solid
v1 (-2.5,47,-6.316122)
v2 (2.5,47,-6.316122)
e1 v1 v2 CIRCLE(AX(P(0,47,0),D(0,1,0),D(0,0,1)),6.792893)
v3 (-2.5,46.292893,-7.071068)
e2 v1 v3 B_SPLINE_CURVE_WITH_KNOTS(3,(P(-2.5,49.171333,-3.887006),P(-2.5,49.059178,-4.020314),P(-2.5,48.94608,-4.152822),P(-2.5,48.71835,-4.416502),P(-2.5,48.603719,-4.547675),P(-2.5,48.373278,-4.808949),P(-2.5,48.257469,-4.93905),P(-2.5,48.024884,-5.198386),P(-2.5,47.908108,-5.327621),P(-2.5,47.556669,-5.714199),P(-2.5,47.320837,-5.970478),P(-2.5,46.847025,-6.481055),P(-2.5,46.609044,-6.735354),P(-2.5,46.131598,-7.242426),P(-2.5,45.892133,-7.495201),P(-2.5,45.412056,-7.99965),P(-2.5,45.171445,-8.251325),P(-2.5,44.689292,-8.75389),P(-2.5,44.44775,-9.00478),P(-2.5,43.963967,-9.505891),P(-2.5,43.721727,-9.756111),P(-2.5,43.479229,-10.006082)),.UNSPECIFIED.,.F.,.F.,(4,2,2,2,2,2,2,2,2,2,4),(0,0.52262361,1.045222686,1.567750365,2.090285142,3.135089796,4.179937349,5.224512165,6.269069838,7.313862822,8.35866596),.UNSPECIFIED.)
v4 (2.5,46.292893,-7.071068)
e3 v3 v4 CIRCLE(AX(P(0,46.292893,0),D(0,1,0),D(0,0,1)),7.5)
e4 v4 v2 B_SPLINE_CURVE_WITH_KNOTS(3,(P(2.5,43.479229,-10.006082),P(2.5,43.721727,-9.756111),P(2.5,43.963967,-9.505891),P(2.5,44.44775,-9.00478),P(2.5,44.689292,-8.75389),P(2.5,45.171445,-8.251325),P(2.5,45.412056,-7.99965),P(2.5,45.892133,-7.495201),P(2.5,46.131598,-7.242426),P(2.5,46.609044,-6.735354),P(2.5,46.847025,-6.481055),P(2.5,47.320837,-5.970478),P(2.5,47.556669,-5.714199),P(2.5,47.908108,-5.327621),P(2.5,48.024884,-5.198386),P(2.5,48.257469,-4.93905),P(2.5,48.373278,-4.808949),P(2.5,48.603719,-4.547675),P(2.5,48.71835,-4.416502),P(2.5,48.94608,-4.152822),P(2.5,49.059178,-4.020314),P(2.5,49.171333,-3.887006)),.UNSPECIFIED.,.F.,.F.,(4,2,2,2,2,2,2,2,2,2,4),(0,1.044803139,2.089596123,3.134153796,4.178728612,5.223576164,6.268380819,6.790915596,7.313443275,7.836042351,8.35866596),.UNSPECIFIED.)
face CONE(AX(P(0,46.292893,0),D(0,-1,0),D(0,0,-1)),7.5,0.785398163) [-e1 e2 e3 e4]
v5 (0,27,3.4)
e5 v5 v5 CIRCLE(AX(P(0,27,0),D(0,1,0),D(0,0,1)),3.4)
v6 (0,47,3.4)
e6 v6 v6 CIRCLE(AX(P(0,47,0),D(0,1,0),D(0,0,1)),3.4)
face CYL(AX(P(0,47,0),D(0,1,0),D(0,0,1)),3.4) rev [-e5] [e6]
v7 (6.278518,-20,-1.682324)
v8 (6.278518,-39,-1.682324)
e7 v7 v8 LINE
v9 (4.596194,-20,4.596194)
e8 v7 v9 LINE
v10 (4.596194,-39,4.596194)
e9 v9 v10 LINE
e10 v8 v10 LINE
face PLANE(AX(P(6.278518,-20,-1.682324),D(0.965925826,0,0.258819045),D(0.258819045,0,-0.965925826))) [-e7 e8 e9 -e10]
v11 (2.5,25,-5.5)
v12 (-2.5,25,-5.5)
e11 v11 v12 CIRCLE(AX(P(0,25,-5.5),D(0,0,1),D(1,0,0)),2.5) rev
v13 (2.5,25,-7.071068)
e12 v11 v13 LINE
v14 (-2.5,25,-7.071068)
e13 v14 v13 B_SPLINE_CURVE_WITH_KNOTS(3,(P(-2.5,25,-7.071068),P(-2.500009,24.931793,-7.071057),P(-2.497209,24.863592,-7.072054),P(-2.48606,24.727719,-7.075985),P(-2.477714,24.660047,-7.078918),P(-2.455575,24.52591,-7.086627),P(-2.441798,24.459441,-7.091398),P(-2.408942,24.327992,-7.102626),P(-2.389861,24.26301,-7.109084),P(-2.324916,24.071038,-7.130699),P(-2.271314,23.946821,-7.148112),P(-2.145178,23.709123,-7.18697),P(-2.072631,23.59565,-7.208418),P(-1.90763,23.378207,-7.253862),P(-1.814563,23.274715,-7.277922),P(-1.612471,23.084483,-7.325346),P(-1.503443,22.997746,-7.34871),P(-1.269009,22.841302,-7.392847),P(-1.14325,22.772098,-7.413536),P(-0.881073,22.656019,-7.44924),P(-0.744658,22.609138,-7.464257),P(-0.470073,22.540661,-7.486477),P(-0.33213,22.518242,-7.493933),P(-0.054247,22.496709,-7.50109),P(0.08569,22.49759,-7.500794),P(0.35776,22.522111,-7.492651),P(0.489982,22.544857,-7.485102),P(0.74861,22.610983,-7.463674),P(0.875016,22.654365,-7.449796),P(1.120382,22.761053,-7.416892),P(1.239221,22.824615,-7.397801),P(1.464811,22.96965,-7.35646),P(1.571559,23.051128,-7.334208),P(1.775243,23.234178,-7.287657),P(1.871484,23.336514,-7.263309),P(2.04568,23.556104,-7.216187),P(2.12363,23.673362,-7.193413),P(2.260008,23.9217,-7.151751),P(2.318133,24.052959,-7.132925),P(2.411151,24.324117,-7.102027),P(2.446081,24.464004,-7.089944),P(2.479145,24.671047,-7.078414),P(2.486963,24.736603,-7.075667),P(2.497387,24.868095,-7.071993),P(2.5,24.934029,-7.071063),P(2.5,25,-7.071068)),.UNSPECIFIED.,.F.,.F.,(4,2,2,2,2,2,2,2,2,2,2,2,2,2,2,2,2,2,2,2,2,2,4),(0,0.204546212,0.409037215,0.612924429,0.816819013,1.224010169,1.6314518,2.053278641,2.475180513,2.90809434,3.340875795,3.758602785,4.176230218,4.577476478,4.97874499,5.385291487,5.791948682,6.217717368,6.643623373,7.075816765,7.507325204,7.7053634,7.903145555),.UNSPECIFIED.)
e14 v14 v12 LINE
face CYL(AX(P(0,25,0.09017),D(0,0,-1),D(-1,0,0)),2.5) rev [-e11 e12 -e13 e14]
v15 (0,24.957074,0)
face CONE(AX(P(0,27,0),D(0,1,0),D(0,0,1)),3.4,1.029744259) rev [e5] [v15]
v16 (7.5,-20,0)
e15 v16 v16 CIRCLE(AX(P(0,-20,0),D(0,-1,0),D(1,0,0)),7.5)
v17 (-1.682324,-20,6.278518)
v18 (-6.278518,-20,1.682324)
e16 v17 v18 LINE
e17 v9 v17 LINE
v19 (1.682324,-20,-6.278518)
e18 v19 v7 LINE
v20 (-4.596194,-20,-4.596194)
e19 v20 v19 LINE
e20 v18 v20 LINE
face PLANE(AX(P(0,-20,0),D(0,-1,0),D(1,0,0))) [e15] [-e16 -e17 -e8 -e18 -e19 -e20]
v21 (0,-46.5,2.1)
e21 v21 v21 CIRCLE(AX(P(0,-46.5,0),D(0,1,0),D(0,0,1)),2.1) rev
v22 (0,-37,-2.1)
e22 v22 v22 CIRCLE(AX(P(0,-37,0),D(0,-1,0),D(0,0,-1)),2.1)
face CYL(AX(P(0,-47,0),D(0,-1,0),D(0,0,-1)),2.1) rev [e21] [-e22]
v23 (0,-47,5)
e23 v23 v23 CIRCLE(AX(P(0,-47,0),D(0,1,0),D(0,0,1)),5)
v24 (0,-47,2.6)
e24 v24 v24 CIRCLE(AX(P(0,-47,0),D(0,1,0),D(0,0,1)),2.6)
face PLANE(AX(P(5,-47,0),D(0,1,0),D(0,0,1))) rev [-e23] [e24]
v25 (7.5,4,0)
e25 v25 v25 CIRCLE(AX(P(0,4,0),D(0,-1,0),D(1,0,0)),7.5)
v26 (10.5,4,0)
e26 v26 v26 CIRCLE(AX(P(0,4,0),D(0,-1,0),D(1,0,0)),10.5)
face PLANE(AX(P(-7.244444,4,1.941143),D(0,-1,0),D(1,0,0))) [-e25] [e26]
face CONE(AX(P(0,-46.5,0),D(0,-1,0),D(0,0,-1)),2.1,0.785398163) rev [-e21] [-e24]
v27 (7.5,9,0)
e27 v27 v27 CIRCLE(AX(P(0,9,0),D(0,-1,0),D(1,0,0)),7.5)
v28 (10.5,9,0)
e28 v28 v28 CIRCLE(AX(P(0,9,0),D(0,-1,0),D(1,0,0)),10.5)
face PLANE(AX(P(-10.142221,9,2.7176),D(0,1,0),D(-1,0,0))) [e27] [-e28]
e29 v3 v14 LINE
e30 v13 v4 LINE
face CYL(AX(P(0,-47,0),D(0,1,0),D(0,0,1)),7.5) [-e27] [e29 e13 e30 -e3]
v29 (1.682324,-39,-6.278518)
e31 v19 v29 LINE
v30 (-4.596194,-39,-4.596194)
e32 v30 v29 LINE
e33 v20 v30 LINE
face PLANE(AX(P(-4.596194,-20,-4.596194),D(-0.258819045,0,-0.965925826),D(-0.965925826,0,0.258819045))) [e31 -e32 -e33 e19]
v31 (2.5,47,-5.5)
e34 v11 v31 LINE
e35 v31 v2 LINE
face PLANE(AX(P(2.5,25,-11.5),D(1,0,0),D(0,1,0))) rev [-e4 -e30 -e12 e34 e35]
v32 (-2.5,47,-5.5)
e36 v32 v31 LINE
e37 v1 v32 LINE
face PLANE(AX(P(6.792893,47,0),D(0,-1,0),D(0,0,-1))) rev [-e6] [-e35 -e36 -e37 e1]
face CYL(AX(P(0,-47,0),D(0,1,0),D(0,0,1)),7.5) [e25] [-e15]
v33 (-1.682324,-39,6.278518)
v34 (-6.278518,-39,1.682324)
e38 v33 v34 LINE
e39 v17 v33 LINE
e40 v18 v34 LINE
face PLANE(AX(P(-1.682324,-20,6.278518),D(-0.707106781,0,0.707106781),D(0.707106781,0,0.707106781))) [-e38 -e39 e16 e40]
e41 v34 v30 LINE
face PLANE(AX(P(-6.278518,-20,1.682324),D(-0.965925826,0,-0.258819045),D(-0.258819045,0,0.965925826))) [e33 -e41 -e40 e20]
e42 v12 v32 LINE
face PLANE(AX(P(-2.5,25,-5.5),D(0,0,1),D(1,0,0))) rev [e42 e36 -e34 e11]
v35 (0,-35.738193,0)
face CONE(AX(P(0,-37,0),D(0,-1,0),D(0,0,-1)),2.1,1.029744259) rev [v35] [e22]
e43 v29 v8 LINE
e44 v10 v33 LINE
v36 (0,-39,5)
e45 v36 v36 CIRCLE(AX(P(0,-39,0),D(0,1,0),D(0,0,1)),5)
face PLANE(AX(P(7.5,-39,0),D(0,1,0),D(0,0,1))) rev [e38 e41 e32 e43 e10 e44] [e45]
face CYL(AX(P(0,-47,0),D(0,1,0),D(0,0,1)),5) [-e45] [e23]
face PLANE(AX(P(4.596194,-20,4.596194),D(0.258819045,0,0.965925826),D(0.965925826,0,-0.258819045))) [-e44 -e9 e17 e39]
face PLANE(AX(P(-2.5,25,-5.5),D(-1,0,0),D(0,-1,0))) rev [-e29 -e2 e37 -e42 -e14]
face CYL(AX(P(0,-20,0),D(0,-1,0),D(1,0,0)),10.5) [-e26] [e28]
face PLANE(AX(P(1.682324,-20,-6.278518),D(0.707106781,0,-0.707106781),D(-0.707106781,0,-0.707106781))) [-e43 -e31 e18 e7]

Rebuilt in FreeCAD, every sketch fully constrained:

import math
import FreeCAD as App
import Part
import Sketcher
Q = App.Units.Quantity


def edges_at(feature, points):
    """Names of the edges that pass closest to the given points."""
    edges = feature.Shape.Edges
    near = lambda p: min(range(len(edges)), key=lambda i: edges[i].distToShape(Part.Vertex(*p))[0])
    return sorted({f"Edge{near(p) + 1}" for p in points})


def add_polygon(sketch, points):
    """Adds a closed chain of lines whose ends are joined by coincident constraints."""
    first, n = sketch.GeometryCount, len(points)
    for a, b in zip(points, points[1:] + points[:1]):
        sketch.addGeometry(Part.LineSegment(App.Vector(*a, 0), App.Vector(*b, 0)), False)
    for i in range(n):
        sketch.addConstraint(Sketcher.Constraint("Coincident", first + i, 2, first + (i + 1) % n, 1))

doc = App.newDocument("Part")
body = doc.addObject("PartDesign::Body", "Body")

sketch1 = body.newObject("Sketcher::SketchObject", "Sketch")
sketch1.AttachmentSupport = (doc.getObject("XY_Plane"), [""])
sketch1.MapMode = "FlatFace"
add_polygon(sketch1, [(6.792893, 47), (0, 47), (0, -47), (5, -47), (5, -39), (7.5, -39), (7.5, 46.292893)])
sketch1.addConstraint([
    Sketcher.Constraint("Horizontal", 0),
    Sketcher.Constraint("Vertical", 1),
    Sketcher.Constraint("Horizontal", 2),
    Sketcher.Constraint("Vertical", 3),
    Sketcher.Constraint("Horizontal", 4),
    Sketcher.Constraint("Vertical", 5),
    Sketcher.Constraint("Symmetric", 0, 2, 1, 2, -1, 1),
    Sketcher.Constraint("DistanceX", 2, 1, 2, 2, Q("5 mm")),
    Sketcher.Constraint("DistanceY", 1, 2, 1, 1, Q("94 mm")),
    Sketcher.Constraint("DistanceY", 3, 1, 3, 2, Q("8 mm")),
    Sketcher.Constraint("Angle", 6, Q("135 deg")),
    Sketcher.Constraint("Distance", 6, Q("1 mm")),
    Sketcher.Constraint("DistanceX", 4, 1, 4, 2, Q("2.5 mm")),
])
revolution = body.newObject("PartDesign::Revolution", "Revolution")
revolution.Profile = sketch1
revolution.ReferenceAxis = (sketch1, ["V_Axis"])
revolution.Angle = 360

sketch2 = body.newObject("Sketcher::SketchObject", "Sketch001")
sketch2.AttachmentSupport = (doc.getObject("XZ_Plane"), [""])
sketch2.MapMode = "FlatFace"
sketch2.AttachmentOffset = App.Placement(App.Vector(0, 0, -47), App.Rotation())
add_polygon(sketch2, [(-2.5, -11.5), (-2.5, -5.5), (2.5, -5.5), (2.5, -11.5)])
sketch2.addConstraint([
    Sketcher.Constraint("Vertical", 0),
    Sketcher.Constraint("Horizontal", 1),
    Sketcher.Constraint("Vertical", 2),
    Sketcher.Constraint("Horizontal", 3),
    Sketcher.Constraint("DistanceX", 1, 1, 1, 2, Q("5 mm")),
    Sketcher.Constraint("DistanceY", 0, 1, 0, 2, Q("6 mm")),
    Sketcher.Constraint("DistanceX", 0, 2, -1, 1, Q("2.5 mm")),
    Sketcher.Constraint("DistanceY", 0, 2, -1, 1, Q("5.5 mm")),
])
pocket1 = body.newObject("PartDesign::Pocket", "Pocket")
pocket1.Profile = sketch2
pocket1.Length = 22
pocket1.Reversed = True

sketch3 = body.newObject("Sketcher::SketchObject", "Sketch002")
sketch3.AttachmentSupport = (doc.getObject("XY_Plane"), [""])
sketch3.MapMode = "FlatFace"
sketch3.AttachmentOffset = App.Placement(App.Vector(0, 0, -7.5), App.Rotation())
sketch3.addGeometry([
    Part.LineSegment(App.Vector(-2.5, 25, 0), App.Vector(2.5, 25, 0)),
    Part.ArcOfCircle(Part.Circle(App.Vector(0, 25, 0), App.Vector(0, 0, 1), 2.5), math.radians(180), math.radians(360)),
], False)
sketch3.addConstraint([
    Sketcher.Constraint("Coincident", 0, 1, 1, 1),
    Sketcher.Constraint("Coincident", 1, 2, 0, 2),
    Sketcher.Constraint("Horizontal", 0),
    Sketcher.Constraint("PointOnObject", 1, 3, -2),
    Sketcher.Constraint("Horizontal", 1, 3, 0, 1),
    Sketcher.Constraint("Radius", 1, Q("2.5 mm")),
    Sketcher.Constraint("DistanceY", -1, 1, 1, 3, Q("25 mm")),
])
pocket2 = body.newObject("PartDesign::Pocket", "Pocket001")
pocket2.Profile = sketch3
pocket2.Length = 2
pocket2.Reversed = True

sketch4 = body.newObject("Sketcher::SketchObject", "Sketch003")
sketch4.AttachmentSupport = (doc.getObject("XZ_Plane"), [""])
sketch4.MapMode = "FlatFace"
sketch4.AttachmentOffset = App.Placement(App.Vector(0, 0, 39), App.Rotation())
sketch4.addGeometry(Part.Circle(App.Vector(0, 0, 0), App.Vector(0, 0, 1), 12.651043), False)
add_polygon(sketch4, [(1.682324, -6.278518), (-4.596194, -4.596194), (-6.278518, 1.682324), (-1.682324, 6.278518), (4.596194, 4.596194), (6.278518, -1.682324)])
sketch4.addConstraint([
    Sketcher.Constraint("Coincident", 0, 3, -1, 1),
    Sketcher.Constraint("Symmetric", 1, 2, 4, 2, -1, 1),
    Sketcher.Constraint("Symmetric", 2, 2, 5, 2, -1, 1),
    Sketcher.Constraint("Symmetric", 3, 2, 6, 2, -1, 1),
    Sketcher.Constraint("Equal", 1, 2),
    Sketcher.Constraint("Equal", 2, 3),
    Sketcher.Constraint("Angle", 1, Q("165 deg")),
    Sketcher.Constraint("Angle", 2, Q("105 deg")),
    Sketcher.Constraint("Angle", 3, Q("45 deg")),
    Sketcher.Constraint("Distance", 1, Q("6.5 mm")),
    Sketcher.Constraint("Diameter", 0, Q("25.302087 mm")),
])
pocket3 = body.newObject("PartDesign::Pocket", "Pocket002")
pocket3.Profile = sketch4
pocket3.Length = 19

sketch5 = body.newObject("Sketcher::SketchObject", "Sketch004")
sketch5.AttachmentSupport = (doc.getObject("XZ_Plane"), [""])
sketch5.MapMode = "FlatFace"
sketch5.AttachmentOffset = App.Placement(App.Vector(0, 0, 47), App.Rotation())
sketch5.addGeometry(Part.Circle(App.Vector(0, 0, 0), App.Vector(0, 0, 1), 2.1), False)
sketch5.addConstraint([
    Sketcher.Constraint("Coincident", 0, 3, -1, 1),
    Sketcher.Constraint("Diameter", 0, Q("4.2 mm")),
])
doc.recompute()
hole = body.newObject("PartDesign::Hole", "Hole")
hole.Profile = sketch5
hole.ThreadType = "None"
hole.Diameter = 4.2
hole.DepthType = "Dimension"
hole.Depth = 10
hole.DrillPoint = "Angled"
hole.DrillPointAngle = 118
doc.recompute()

chamfer = body.newObject("PartDesign::Chamfer", "Chamfer")
chamfer.Base = (hole, edges_at(hole, [(-2.1, -47, 0)]))
chamfer.Size = 0.5

sketch6 = body.newObject("Sketcher::SketchObject", "Sketch005")
sketch6.Placement = App.Placement(App.Vector(0, 0, 0), App.Rotation(App.Vector(-0.965925826, 0, 0.258819045), App.Vector(0, 0.999999999, 0), App.Vector(-0.258819045, 0, -0.965925826), "ZXY"))
add_polygon(sketch6, [(7.5, 9), (7.5, 4), (10.5, 4), (10.5, 9)])
sketch6.addConstraint([
    Sketcher.Constraint("Vertical", 0),
    Sketcher.Constraint("Horizontal", 1),
    Sketcher.Constraint("Vertical", 2),
    Sketcher.Constraint("Horizontal", 3),
    Sketcher.Constraint("DistanceX", 1, 1, 1, 2, Q("3 mm")),
    Sketcher.Constraint("DistanceY", 0, 2, 0, 1, Q("5 mm")),
    Sketcher.Constraint("DistanceY", -1, 1, 0, 2, Q("4 mm")),
    Sketcher.Constraint("DistanceX", -1, 1, 0, 2, Q("7.5 mm")),
])
revolution2 = body.newObject("PartDesign::Revolution", "Revolution001")
revolution2.Profile = sketch6
revolution2.ReferenceAxis = (sketch6, ["V_Axis"])
revolution2.Angle = 360

sketch7 = body.newObject("Sketcher::SketchObject", "Sketch006")
sketch7.AttachmentSupport = (doc.getObject("XZ_Plane"), [""])
sketch7.MapMode = "FlatFace"
sketch7.AttachmentOffset = App.Placement(App.Vector(0, 0, -47), App.Rotation())
sketch7.addGeometry(Part.Circle(App.Vector(0, 0, 0), App.Vector(0, 0, 1), 3.4), False)
sketch7.addConstraint([
    Sketcher.Constraint("Coincident", 0, 3, -1, 1),
    Sketcher.Constraint("Diameter", 0, Q("6.8 mm")),
])
doc.recompute()
hole2 = body.newObject("PartDesign::Hole", "Hole001")
hole2.Profile = sketch7
hole2.ThreadType = "None"
hole2.Diameter = 6.8
hole2.DepthType = "Dimension"
hole2.Depth = 20
hole2.DrillPoint = "Angled"
hole2.DrillPointAngle = 118
hole2.Reversed = True

doc.recompute()
